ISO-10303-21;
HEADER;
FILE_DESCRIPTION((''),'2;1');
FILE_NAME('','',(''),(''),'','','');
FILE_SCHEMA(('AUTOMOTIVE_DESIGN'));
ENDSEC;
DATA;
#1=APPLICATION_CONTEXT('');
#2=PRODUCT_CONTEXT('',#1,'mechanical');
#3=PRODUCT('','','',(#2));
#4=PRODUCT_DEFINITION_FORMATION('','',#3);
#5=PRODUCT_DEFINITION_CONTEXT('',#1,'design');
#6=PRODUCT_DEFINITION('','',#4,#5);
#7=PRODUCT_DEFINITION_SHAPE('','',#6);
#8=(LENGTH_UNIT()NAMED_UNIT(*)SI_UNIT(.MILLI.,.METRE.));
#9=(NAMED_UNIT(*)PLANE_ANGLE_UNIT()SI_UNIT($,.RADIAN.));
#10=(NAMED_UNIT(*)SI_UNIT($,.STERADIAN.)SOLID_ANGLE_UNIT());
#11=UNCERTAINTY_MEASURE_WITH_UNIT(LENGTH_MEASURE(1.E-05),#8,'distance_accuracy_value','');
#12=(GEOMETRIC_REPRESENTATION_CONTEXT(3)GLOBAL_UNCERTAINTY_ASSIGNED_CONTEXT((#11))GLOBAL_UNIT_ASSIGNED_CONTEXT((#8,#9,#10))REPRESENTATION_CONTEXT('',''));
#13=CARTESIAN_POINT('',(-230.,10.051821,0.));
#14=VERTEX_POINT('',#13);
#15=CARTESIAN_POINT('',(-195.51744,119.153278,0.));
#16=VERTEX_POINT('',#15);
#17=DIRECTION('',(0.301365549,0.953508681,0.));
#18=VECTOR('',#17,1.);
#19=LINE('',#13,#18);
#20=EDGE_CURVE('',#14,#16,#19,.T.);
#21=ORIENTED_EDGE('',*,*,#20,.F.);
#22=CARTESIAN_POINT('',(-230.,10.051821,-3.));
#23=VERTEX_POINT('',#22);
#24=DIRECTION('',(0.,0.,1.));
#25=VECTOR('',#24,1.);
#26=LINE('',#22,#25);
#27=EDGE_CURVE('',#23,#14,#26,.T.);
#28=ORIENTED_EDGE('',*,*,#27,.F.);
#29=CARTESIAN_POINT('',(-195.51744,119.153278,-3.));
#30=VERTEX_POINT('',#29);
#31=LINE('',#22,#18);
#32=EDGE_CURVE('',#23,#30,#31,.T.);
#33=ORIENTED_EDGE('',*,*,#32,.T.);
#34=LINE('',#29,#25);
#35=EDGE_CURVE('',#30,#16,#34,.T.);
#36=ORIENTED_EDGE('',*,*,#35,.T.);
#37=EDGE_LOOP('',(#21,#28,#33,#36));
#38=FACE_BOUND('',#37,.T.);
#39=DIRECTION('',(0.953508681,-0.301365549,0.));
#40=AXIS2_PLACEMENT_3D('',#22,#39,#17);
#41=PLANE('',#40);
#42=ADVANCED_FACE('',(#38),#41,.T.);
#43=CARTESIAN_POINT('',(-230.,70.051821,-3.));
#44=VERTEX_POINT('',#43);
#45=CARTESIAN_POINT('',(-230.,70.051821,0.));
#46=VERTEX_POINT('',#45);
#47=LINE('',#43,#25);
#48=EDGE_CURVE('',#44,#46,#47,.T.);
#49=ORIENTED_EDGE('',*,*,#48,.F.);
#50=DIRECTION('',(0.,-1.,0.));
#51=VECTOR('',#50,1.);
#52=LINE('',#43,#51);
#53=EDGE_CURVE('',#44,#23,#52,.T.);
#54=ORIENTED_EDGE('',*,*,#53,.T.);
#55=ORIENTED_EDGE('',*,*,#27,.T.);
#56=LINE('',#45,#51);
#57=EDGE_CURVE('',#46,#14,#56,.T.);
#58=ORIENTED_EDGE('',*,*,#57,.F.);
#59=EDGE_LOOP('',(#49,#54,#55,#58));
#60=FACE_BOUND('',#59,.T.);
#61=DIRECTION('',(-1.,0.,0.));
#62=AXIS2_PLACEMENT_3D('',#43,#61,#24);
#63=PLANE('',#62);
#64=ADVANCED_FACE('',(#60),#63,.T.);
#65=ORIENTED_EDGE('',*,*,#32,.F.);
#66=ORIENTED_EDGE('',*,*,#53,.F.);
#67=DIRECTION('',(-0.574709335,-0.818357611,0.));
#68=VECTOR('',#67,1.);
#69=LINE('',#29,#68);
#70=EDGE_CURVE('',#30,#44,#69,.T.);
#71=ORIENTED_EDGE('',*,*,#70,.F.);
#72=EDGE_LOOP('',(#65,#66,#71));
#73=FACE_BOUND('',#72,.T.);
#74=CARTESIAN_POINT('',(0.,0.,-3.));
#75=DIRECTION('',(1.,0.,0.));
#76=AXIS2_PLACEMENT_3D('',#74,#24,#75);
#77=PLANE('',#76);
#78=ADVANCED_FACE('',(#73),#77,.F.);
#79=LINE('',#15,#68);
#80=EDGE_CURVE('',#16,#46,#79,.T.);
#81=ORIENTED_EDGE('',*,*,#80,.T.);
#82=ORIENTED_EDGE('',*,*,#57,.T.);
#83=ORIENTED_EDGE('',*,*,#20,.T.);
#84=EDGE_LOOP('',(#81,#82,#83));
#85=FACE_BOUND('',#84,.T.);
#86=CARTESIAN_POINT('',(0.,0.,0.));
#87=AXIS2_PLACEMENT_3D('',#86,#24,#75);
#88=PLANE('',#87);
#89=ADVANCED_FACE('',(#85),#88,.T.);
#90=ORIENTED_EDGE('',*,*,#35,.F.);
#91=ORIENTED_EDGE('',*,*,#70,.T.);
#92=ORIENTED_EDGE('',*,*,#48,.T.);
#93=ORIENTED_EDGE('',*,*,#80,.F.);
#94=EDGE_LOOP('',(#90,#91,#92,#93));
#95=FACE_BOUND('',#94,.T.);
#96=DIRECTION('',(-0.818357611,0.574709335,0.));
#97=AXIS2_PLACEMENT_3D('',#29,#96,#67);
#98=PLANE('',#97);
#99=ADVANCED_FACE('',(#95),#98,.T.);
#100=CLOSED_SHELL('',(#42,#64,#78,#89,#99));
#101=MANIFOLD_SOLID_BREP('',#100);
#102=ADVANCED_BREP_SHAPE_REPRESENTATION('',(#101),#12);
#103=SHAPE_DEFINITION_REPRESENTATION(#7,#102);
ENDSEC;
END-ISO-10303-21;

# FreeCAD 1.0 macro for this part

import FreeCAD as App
import Part
import Sketcher

V = App.Vector

doc = App.newDocument("Part")
body = doc.addObject("PartDesign::Body", "Body")

# Sketch on XY plane
sketch1 = body.newObject("Sketcher::SketchObject", "Sketch")
sketch1.AttachmentSupport = (doc.getObject("XY_Plane"), [""])
sketch1.MapMode = "FlatFace"
sketch1.addGeometry([
    Part.LineSegment(V(-196, 119, 0), V(-230, 70, 0)),
    Part.LineSegment(V(-230, 70, 0), V(-230, 10, 0)),
    Part.LineSegment(V(-230, 10, 0), V(-196, 119, 0)),
], False)
sketch1.addConstraint([
    Sketcher.Constraint("Coincident", 0, 2, 1, 1),
    Sketcher.Constraint("Coincident", 1, 2, 2, 1),
    Sketcher.Constraint("Coincident", 2, 2, 0, 1),
    Sketcher.Constraint("Vertical", 1),
    Sketcher.Constraint("DistanceY", 1, 2, 1, 1, 60.0),
    Sketcher.Constraint("Distance", 0, 60.0),
    Sketcher.Constraint("DistanceX", 0, 2, -1, 1, 230.0),
    Sketcher.Constraint("Distance", 2, 114.421042),
    Sketcher.Constraint("DistanceY", -1, 1, 0, 2, 70.051821),
])
pad1 = body.newObject("PartDesign::Pad", "Pad")
pad1.Profile = sketch1
pad1.Length = 3
pad1.Reversed = True

doc.recompute()
